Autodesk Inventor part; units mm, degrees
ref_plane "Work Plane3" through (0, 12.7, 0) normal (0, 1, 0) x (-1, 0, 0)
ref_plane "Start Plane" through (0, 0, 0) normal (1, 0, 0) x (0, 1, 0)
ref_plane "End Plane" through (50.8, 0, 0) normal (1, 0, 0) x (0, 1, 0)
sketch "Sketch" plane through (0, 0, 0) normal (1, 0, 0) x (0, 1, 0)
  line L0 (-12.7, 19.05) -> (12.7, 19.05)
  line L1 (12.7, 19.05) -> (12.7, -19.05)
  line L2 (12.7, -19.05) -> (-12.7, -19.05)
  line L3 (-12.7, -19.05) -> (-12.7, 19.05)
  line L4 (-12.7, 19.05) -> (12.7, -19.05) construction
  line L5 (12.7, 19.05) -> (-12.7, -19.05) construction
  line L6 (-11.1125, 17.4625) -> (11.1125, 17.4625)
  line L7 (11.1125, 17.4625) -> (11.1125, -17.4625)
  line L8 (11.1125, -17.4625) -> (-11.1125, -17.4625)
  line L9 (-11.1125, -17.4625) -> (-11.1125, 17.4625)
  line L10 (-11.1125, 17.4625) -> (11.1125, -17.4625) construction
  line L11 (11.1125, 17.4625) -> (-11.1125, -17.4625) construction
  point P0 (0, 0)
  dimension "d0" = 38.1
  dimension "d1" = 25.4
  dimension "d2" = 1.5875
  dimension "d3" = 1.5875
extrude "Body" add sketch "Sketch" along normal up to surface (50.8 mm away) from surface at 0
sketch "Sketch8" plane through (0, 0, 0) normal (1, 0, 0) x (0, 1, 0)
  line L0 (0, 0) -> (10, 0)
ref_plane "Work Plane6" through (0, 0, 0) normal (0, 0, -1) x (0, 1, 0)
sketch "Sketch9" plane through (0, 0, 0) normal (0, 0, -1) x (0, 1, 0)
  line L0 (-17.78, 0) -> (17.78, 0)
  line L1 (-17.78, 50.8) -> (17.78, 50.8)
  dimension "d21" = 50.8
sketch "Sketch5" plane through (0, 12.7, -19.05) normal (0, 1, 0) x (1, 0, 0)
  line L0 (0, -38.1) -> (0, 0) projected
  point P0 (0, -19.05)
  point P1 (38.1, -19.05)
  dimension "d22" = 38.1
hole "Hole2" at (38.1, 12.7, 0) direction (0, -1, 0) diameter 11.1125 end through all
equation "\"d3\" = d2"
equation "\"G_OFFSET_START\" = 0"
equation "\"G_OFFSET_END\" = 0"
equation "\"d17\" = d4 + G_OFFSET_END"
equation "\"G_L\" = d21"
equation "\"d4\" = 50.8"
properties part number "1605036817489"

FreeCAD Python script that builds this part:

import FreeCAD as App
import Part
import Sketcher
from FreeCAD import Vector
Q = App.Units.Quantity

doc = App.newDocument("Part")
body = doc.addObject("PartDesign::Body", "Body")

# Sketch on YZ plane
sketch1 = body.newObject("Sketcher::SketchObject", "Sketch")
sketch1.AttachmentSupport = (doc.getObject("YZ_Plane"), [""])
sketch1.MapMode = "FlatFace"
sketch1.addGeometry(Part.LineSegment(Vector(13, 19, 0), Vector(-13, 19, 0)), False)
sketch1.addGeometry(Part.LineSegment(Vector(-13, 19, 0), Vector(-13, -19, 0)), False)
sketch1.addGeometry(Part.LineSegment(Vector(-13, -19, 0), Vector(13, -19, 0)), False)
sketch1.addGeometry(Part.LineSegment(Vector(13, -19, 0), Vector(13, 19, 0)), False)
sketch1.addGeometry(Part.LineSegment(Vector(-11, -17, 0), Vector(-11, 17, 0)), False)
sketch1.addGeometry(Part.LineSegment(Vector(-11, 17, 0), Vector(11, 17, 0)), False)
sketch1.addGeometry(Part.LineSegment(Vector(11, 17, 0), Vector(11, -17, 0)), False)
sketch1.addGeometry(Part.LineSegment(Vector(11, -17, 0), Vector(-11, -17, 0)), False)
sketch1.addConstraint(Sketcher.Constraint("Coincident", 0, 2, 1, 1))
sketch1.addConstraint(Sketcher.Constraint("Coincident", 1, 2, 2, 1))
sketch1.addConstraint(Sketcher.Constraint("Coincident", 2, 2, 3, 1))
sketch1.addConstraint(Sketcher.Constraint("Coincident", 3, 2, 0, 1))
sketch1.addConstraint(Sketcher.Constraint("Coincident", 4, 2, 5, 1))
sketch1.addConstraint(Sketcher.Constraint("Coincident", 5, 2, 6, 1))
sketch1.addConstraint(Sketcher.Constraint("Coincident", 6, 2, 7, 1))
sketch1.addConstraint(Sketcher.Constraint("Coincident", 7, 2, 4, 1))
sketch1.addConstraint(Sketcher.Constraint("Horizontal", 0))
sketch1.addConstraint(Sketcher.Constraint("Vertical", 1))
sketch1.addConstraint(Sketcher.Constraint("Horizontal", 2))
sketch1.addConstraint(Sketcher.Constraint("Vertical", 3))
sketch1.addConstraint(Sketcher.Constraint("Vertical", 4))
sketch1.addConstraint(Sketcher.Constraint("Horizontal", 5))
sketch1.addConstraint(Sketcher.Constraint("Vertical", 6))
sketch1.addConstraint(Sketcher.Constraint("Horizontal", 7))
sketch1.addConstraint(Sketcher.Constraint("Symmetric", 0, 2, 2, 2, -1, 1))
sketch1.addConstraint(Sketcher.Constraint("Symmetric", 4, 2, 6, 2, -1, 1))
sketch1.addConstraint(Sketcher.Constraint("DistanceX", 0, 2, 0, 1, Q("1 in")))
sketch1.addConstraint(Sketcher.Constraint("DistanceY", 1, 2, 1, 1, Q("1.5 in")))
sketch1.addConstraint(Sketcher.Constraint("DistanceX", 0, 2, 4, 2, Q("0.0625 in")))
sketch1.addConstraint(Sketcher.Constraint("DistanceY", 4, 2, 0, 2, Q("0.0625 in")))
pad1 = body.newObject("PartDesign::Pad", "Pad")
pad1.Profile = sketch1
pad1.Length = Q("2 in")

# Sketch on XZ plane
sketch2 = body.newObject("Sketcher::SketchObject", "Sketch001")
sketch2.AttachmentSupport = (doc.getObject("XZ_Plane"), [""])
sketch2.MapMode = "FlatFace"
sketch2.AttachmentOffset = App.Placement(Vector(0, 0, -0.5 * 25.4), App.Rotation())
sketch2.addGeometry(Part.Circle(Vector(38, 0, 0), Vector(0, 0, 1), 6), False)
sketch2.addConstraint(Sketcher.Constraint("PointOnObject", 0, 3, -1))
sketch2.addConstraint(Sketcher.Constraint("Diameter", 0, Q("0.4375 in")))
sketch2.addConstraint(Sketcher.Constraint("DistanceX", -1, 1, 0, 3, Q("1.5 in")))
doc.recompute()
hole = body.newObject("PartDesign::Hole", "Hole")
hole.Profile = sketch2
hole.ThreadType = "None"
hole.Diameter = Q("0.4375 in")
hole.DepthType = "ThroughAll"
hole.Reversed = True

doc.recompute()
